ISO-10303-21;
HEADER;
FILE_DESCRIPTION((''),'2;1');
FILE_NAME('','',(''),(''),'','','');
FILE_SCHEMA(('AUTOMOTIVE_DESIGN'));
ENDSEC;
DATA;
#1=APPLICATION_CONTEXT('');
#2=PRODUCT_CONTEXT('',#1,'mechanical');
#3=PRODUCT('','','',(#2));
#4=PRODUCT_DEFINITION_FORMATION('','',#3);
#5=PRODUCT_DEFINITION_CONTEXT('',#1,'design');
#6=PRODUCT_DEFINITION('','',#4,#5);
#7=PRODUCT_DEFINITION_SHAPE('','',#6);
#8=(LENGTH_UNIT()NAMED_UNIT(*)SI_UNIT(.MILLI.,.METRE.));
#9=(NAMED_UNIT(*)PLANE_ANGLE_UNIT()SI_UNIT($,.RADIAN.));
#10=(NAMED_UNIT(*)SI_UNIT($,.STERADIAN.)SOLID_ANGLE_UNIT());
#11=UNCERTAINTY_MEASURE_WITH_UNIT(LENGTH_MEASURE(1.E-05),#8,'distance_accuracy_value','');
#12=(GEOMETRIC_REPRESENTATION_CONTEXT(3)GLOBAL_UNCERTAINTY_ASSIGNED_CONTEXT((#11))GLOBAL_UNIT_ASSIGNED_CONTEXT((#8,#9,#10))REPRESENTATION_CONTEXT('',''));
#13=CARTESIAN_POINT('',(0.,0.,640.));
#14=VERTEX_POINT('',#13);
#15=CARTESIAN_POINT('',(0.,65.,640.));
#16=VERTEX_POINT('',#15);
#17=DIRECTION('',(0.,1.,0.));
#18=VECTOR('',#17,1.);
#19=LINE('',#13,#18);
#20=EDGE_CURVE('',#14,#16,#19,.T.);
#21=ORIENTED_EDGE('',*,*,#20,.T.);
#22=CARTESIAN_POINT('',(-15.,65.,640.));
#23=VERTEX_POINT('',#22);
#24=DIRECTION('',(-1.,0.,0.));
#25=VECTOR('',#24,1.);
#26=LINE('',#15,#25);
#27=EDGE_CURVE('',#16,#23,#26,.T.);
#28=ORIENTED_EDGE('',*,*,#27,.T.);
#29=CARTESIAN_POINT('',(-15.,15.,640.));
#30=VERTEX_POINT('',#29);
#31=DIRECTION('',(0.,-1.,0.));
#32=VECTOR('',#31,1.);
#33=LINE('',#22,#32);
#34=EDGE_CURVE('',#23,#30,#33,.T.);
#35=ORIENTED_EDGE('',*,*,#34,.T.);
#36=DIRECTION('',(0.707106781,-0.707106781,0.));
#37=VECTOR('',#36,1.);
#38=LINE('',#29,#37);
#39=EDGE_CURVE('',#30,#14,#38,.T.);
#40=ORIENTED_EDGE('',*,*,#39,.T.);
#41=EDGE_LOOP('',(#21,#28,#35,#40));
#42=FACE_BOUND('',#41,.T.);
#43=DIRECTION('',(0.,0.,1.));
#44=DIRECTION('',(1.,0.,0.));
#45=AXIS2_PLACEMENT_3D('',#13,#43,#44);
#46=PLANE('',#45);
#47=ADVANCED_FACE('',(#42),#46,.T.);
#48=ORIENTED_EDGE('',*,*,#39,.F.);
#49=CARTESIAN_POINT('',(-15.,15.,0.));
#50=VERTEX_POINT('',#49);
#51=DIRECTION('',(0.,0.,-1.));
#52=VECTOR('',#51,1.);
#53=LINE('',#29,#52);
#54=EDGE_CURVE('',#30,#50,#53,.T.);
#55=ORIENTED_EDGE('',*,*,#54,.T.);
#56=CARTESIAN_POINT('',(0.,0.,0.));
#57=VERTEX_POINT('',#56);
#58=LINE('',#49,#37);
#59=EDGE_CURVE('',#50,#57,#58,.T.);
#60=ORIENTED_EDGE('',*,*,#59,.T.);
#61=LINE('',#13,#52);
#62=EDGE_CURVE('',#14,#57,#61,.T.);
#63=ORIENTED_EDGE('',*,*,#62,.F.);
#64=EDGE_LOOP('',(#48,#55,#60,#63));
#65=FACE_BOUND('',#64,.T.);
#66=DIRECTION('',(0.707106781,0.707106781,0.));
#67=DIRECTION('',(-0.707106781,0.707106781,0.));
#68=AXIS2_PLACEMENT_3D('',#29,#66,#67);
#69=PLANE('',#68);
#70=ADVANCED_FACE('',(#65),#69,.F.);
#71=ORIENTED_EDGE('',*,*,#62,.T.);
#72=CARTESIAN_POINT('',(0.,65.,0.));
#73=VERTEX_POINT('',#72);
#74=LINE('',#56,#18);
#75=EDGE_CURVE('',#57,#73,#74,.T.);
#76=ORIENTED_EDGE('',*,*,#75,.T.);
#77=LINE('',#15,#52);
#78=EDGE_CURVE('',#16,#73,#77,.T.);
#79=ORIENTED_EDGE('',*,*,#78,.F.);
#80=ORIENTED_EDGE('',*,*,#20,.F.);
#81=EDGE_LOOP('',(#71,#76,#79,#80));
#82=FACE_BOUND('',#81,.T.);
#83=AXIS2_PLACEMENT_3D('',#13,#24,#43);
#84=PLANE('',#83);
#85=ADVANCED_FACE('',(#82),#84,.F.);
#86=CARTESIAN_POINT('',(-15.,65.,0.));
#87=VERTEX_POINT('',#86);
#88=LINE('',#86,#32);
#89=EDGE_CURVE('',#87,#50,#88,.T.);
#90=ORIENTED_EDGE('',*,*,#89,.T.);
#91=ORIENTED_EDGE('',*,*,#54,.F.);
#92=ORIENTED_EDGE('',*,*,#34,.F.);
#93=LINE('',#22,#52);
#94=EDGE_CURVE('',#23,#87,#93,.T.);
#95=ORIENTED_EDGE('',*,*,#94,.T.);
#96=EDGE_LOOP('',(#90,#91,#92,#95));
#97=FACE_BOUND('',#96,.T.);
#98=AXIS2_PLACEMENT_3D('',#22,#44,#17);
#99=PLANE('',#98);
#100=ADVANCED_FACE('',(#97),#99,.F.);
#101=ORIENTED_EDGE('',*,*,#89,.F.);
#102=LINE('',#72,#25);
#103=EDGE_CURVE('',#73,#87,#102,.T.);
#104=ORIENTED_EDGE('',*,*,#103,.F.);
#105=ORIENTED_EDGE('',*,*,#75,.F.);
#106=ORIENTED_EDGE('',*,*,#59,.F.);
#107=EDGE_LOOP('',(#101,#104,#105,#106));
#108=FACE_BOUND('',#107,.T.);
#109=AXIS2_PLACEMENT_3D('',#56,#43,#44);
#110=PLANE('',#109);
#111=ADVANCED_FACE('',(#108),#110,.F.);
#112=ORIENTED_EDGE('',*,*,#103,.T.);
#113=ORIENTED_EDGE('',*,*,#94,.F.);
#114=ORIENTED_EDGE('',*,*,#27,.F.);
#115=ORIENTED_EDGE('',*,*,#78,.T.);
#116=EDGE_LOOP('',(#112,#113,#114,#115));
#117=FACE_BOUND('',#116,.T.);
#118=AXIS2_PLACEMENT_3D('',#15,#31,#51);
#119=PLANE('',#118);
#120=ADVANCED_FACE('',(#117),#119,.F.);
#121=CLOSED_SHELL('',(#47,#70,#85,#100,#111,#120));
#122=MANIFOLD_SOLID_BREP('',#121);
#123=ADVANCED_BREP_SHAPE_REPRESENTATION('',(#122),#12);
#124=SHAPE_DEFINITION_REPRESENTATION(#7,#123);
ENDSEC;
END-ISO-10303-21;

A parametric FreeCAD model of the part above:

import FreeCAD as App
import Part
import Sketcher
from FreeCAD import Vector
Q = App.Units.Quantity


def add_polygon(sketch, points):
    """Adds a closed chain of lines whose ends are joined by coincident constraints."""
    first, n = sketch.GeometryCount, len(points)
    for a, b in zip(points, points[1:] + points[:1]):
        sketch.addGeometry(Part.LineSegment(App.Vector(*a, 0), App.Vector(*b, 0)), False)
    for i in range(n):
        sketch.addConstraint(Sketcher.Constraint("Coincident", first + i, 2, first + (i + 1) % n, 1))

doc = App.newDocument("Part")
body = doc.addObject("PartDesign::Body", "Body")

# Sketch on XY plane
sketch1 = body.newObject("Sketcher::SketchObject", "Sketch")
sketch1.AttachmentSupport = (doc.getObject("XY_Plane"), [""])
sketch1.MapMode = "FlatFace"
add_polygon(sketch1, [(0, 0), (0, 65), (-15, 65), (-15, 15)])  # lines 0-3
sketch1.addConstraint([
    Sketcher.Constraint("Vertical", 0),
    Sketcher.Constraint("Horizontal", 1),
    Sketcher.Constraint("Vertical", 2),
    Sketcher.Constraint("Coincident", 3, 2, -1, 1),
    Sketcher.Constraint("DistanceX", 1, 2, 1, 1, Q("15 mm")),
    Sketcher.Constraint("DistanceY", 0, 1, 0, 2, Q("65 mm")),
    Sketcher.Constraint("DistanceY", 2, 2, 2, 1, Q("50 mm")),
])
pad1 = body.newObject("PartDesign::Pad", "Pad")
pad1.Profile = sketch1
pad1.Length = 640

doc.recompute()
